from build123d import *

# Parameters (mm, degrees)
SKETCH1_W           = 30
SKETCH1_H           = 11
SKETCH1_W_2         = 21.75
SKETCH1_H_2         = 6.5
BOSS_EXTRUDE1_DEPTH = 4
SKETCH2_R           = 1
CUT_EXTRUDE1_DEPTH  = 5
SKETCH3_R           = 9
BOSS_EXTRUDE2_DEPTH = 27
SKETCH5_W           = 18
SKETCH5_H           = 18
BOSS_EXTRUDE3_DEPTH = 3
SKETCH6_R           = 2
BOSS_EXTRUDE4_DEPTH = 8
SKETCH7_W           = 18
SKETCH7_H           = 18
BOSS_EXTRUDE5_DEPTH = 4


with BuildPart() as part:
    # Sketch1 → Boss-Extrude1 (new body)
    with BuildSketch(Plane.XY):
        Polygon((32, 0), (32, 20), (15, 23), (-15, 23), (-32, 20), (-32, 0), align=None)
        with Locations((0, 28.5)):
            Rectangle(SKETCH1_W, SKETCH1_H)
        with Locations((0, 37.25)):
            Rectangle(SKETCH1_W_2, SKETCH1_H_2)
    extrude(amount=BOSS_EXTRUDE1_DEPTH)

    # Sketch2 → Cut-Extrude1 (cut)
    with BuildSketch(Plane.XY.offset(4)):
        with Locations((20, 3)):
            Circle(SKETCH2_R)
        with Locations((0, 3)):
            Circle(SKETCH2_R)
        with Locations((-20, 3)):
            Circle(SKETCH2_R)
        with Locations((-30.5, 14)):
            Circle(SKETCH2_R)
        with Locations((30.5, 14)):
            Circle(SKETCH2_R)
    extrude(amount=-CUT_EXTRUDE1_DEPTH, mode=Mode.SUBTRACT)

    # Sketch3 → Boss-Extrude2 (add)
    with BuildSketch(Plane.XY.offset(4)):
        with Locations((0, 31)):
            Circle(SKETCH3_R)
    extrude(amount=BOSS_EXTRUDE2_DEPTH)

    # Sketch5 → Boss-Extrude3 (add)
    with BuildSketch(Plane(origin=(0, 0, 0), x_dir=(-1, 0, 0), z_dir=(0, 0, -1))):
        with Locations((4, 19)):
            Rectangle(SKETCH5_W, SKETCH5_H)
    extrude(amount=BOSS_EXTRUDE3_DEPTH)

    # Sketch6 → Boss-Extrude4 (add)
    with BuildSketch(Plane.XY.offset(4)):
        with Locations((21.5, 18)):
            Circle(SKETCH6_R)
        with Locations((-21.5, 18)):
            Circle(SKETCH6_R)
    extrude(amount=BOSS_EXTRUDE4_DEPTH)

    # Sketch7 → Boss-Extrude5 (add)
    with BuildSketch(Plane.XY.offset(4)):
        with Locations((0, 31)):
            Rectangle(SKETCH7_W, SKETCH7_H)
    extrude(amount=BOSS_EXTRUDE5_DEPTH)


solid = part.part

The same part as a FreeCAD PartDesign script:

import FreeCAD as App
import Part
import Sketcher

V = App.Vector

doc = App.newDocument("Part")
body = doc.addObject("PartDesign::Body", "Body")

# Sketch on XY plane
sketch1 = body.newObject("Sketcher::SketchObject", "Sketch")
sketch1.AttachmentSupport = (doc.getObject("XY_Plane"), [""])
sketch1.MapMode = "FlatFace"
sketch1.addGeometry(Part.LineSegment(V(32, 0, 0), V(32, 20, 0)), False)
sketch1.addGeometry(Part.LineSegment(V(32, 20, 0), V(15, 23, 0)), False)
sketch1.addGeometry(Part.LineSegment(V(15, 23, 0), V(15, 34, 0)), False)
sketch1.addGeometry(Part.LineSegment(V(15, 34, 0), V(10.9, 34, 0)), False)
sketch1.addGeometry(Part.LineSegment(V(10.9, 34, 0), V(10.9, 40.5, 0)), False)
sketch1.addGeometry(Part.LineSegment(V(10.9, 40.5, 0), V(-10.9, 40.5, 0)), False)
sketch1.addGeometry(Part.LineSegment(V(-10.9, 40.5, 0), V(-10.9, 34, 0)), False)
sketch1.addGeometry(Part.LineSegment(V(-10.9, 34, 0), V(-15, 34, 0)), False)
sketch1.addGeometry(Part.LineSegment(V(-15, 34, 0), V(-15, 23, 0)), False)
sketch1.addGeometry(Part.LineSegment(V(-15, 23, 0), V(-32, 20, 0)), False)
sketch1.addGeometry(Part.LineSegment(V(-32, 20, 0), V(-32, 0, 0)), False)
sketch1.addGeometry(Part.LineSegment(V(-32, 0, 0), V(32, 0, 0)), False)
sketch1.addConstraint(Sketcher.Constraint("Coincident", 0, 2, 1, 1))
sketch1.addConstraint(Sketcher.Constraint("Coincident", 1, 2, 2, 1))
sketch1.addConstraint(Sketcher.Constraint("Coincident", 2, 2, 3, 1))
sketch1.addConstraint(Sketcher.Constraint("Coincident", 3, 2, 4, 1))
sketch1.addConstraint(Sketcher.Constraint("Coincident", 4, 2, 5, 1))
sketch1.addConstraint(Sketcher.Constraint("Coincident", 5, 2, 6, 1))
sketch1.addConstraint(Sketcher.Constraint("Coincident", 6, 2, 7, 1))
sketch1.addConstraint(Sketcher.Constraint("Coincident", 7, 2, 8, 1))
sketch1.addConstraint(Sketcher.Constraint("Coincident", 8, 2, 9, 1))
sketch1.addConstraint(Sketcher.Constraint("Coincident", 9, 2, 10, 1))
sketch1.addConstraint(Sketcher.Constraint("Coincident", 10, 2, 11, 1))
sketch1.addConstraint(Sketcher.Constraint("Coincident", 11, 2, 0, 1))
sketch1.addConstraint(Sketcher.Constraint("Vertical", 0))
sketch1.addConstraint(Sketcher.Constraint("Vertical", 2))
sketch1.addConstraint(Sketcher.Constraint("Horizontal", 3))
sketch1.addConstraint(Sketcher.Constraint("Vertical", 4))
sketch1.addConstraint(Sketcher.Constraint("Horizontal", 5))
sketch1.addConstraint(Sketcher.Constraint("Vertical", 6))
sketch1.addConstraint(Sketcher.Constraint("Horizontal", 7))
sketch1.addConstraint(Sketcher.Constraint("Vertical", 8))
sketch1.addConstraint(Sketcher.Constraint("Vertical", 10))
sketch1.addConstraint(Sketcher.Constraint("Horizontal", 11))
sketch1.addConstraint(Sketcher.Constraint("Symmetric", 10, 2, 11, 2, -1, 1))
sketch1.addConstraint(Sketcher.Constraint("Symmetric", 3, 2, 6, 2, -2))
sketch1.addConstraint(Sketcher.Constraint("Symmetric", 1, 2, 8, 2, -2))
sketch1.addConstraint(Sketcher.Constraint("Horizontal", 0, 2, 9, 2))
sketch1.addConstraint(Sketcher.Constraint("DistanceX", 11, 1, 11, 2, 64.0))
sketch1.addConstraint(Sketcher.Constraint("DistanceY", 0, 1, 0, 2, 20.0))
sketch1.addConstraint(Sketcher.Constraint("DistanceY", 2, 1, 2, 2, 11.0))
sketch1.addConstraint(Sketcher.Constraint("DistanceY", 4, 1, 4, 2, 6.5))
sketch1.addConstraint(Sketcher.Constraint("DistanceX", -1, 1, 1, 2, 15.0))
sketch1.addConstraint(Sketcher.Constraint("DistanceY", -1, 1, 1, 2, 23.0))
sketch1.addConstraint(Sketcher.Constraint("DistanceX", 5, 2, 5, 1, 21.75))
pad1 = body.newObject("PartDesign::Pad", "Pad")
pad1.Profile = sketch1
pad1.Length = 4

# Sketch on XY plane
sketch2 = body.newObject("Sketcher::SketchObject", "Sketch001")
sketch2.AttachmentSupport = (doc.getObject("XY_Plane"), [""])
sketch2.MapMode = "FlatFace"
sketch2.AttachmentOffset = App.Placement(V(0, 0, 4), App.Rotation())
sketch2.addGeometry(Part.Circle(V(20, 3, 0), V(0, 0, 1), 1), False)
sketch2.addGeometry(Part.Circle(V(0, 3, 0), V(0, 0, 1), 1), False)
sketch2.addGeometry(Part.Circle(V(-20, 3, 0), V(0, 0, 1), 1), False)
sketch2.addGeometry(Part.Circle(V(-30.5, 14, 0), V(0, 0, 1), 1), False)
sketch2.addGeometry(Part.Circle(V(30.5, 14, 0), V(0, 0, 1), 1), False)
sketch2.addConstraint(Sketcher.Constraint("Equal", 0, 1))
sketch2.addConstraint(Sketcher.Constraint("Equal", 1, 2))
sketch2.addConstraint(Sketcher.Constraint("Equal", 2, 3))
sketch2.addConstraint(Sketcher.Constraint("Equal", 3, 4))
sketch2.addConstraint(Sketcher.Constraint("Symmetric", 0, 3, 2, 3, -2))
sketch2.addConstraint(Sketcher.Constraint("Symmetric", 3, 3, 4, 3, -2))
sketch2.addConstraint(Sketcher.Constraint("PointOnObject", 1, 3, -2))
sketch2.addConstraint(Sketcher.Constraint("Horizontal", 0, 3, 1, 3))
sketch2.addConstraint(Sketcher.Constraint("Diameter", 0, 2.0))
sketch2.addConstraint(Sketcher.Constraint("DistanceX", -1, 1, 0, 3, 20.0))
sketch2.addConstraint(Sketcher.Constraint("DistanceY", -1, 1, 0, 3, 3.0))
sketch2.addConstraint(Sketcher.Constraint("DistanceY", -1, 1, 3, 3, 14.0))
sketch2.addConstraint(Sketcher.Constraint("DistanceX", 3, 3, 4, 3, 61.0))
pocket1 = body.newObject("PartDesign::Pocket", "Pocket")
pocket1.Profile = sketch2
pocket1.Length = 5

# Sketch on XY plane
sketch3 = body.newObject("Sketcher::SketchObject", "Sketch002")
sketch3.AttachmentSupport = (doc.getObject("XY_Plane"), [""])
sketch3.MapMode = "FlatFace"
sketch3.AttachmentOffset = App.Placement(V(0, 0, 4), App.Rotation())
sketch3.addGeometry(Part.Circle(V(0, 31, 0), V(0, 0, 1), 9), False)
sketch3.addConstraint(Sketcher.Constraint("PointOnObject", 0, 3, -2))
sketch3.addConstraint(Sketcher.Constraint("Diameter", 0, 18.0))
sketch3.addConstraint(Sketcher.Constraint("DistanceY", -1, 1, 0, 3, 31.0))
pad2 = body.newObject("PartDesign::Pad", "Pad001")
pad2.Profile = sketch3
pad2.Length = 27

# Sketch on XY plane
sketch4 = body.newObject("Sketcher::SketchObject", "Sketch003")
sketch4.AttachmentSupport = (doc.getObject("XY_Plane"), [""])
sketch4.MapMode = "FlatFace"
sketch4.addGeometry(Part.LineSegment(V(5, 28, 0), V(5, 10, 0)), False)
sketch4.addGeometry(Part.LineSegment(V(5, 10, 0), V(-13, 10, 0)), False)
sketch4.addGeometry(Part.LineSegment(V(-13, 10, 0), V(-13, 28, 0)), False)
sketch4.addGeometry(Part.LineSegment(V(-13, 28, 0), V(5, 28, 0)), False)
sketch4.addConstraint(Sketcher.Constraint("Coincident", 0, 2, 1, 1))
sketch4.addConstraint(Sketcher.Constraint("Coincident", 1, 2, 2, 1))
sketch4.addConstraint(Sketcher.Constraint("Coincident", 2, 2, 3, 1))
sketch4.addConstraint(Sketcher.Constraint("Coincident", 3, 2, 0, 1))
sketch4.addConstraint(Sketcher.Constraint("Vertical", 0))
sketch4.addConstraint(Sketcher.Constraint("Horizontal", 1))
sketch4.addConstraint(Sketcher.Constraint("Vertical", 2))
sketch4.addConstraint(Sketcher.Constraint("Horizontal", 3))
sketch4.addConstraint(Sketcher.Constraint("Equal", 3, 0))
sketch4.addConstraint(Sketcher.Constraint("DistanceX", 1, 2, 1, 1, 18.0))
sketch4.addConstraint(Sketcher.Constraint("DistanceX", -1, 1, 0, 2, 5.0))
sketch4.addConstraint(Sketcher.Constraint("DistanceY", -1, 1, 0, 2, 10.0))
pad3 = body.newObject("PartDesign::Pad", "Pad002")
pad3.Profile = sketch4
pad3.Length = 3
pad3.Reversed = True

# Sketch on XY plane
sketch5 = body.newObject("Sketcher::SketchObject", "Sketch004")
sketch5.AttachmentSupport = (doc.getObject("XY_Plane"), [""])
sketch5.MapMode = "FlatFace"
sketch5.AttachmentOffset = App.Placement(V(0, 0, 4), App.Rotation())
sketch5.addGeometry(Part.Circle(V(21.5, 18, 0), V(0, 0, 1), 2), False)
sketch5.addGeometry(Part.Circle(V(-21.5, 18, 0), V(0, 0, 1), 2), False)
sketch5.addConstraint(Sketcher.Constraint("Equal", 0, 1))
sketch5.addConstraint(Sketcher.Constraint("Symmetric", 0, 3, 1, 3, -2))
sketch5.addConstraint(Sketcher.Constraint("Diameter", 0, 4.0))
sketch5.addConstraint(Sketcher.Constraint("DistanceY", -1, 1, 0, 3, 18.0))
sketch5.addConstraint(Sketcher.Constraint("DistanceX", 1, 3, 0, 3, 43.0))
pad4 = body.newObject("PartDesign::Pad", "Pad003")
pad4.Profile = sketch5
pad4.Length = 8

# Sketch on XY plane
sketch6 = body.newObject("Sketcher::SketchObject", "Sketch005")
sketch6.AttachmentSupport = (doc.getObject("XY_Plane"), [""])
sketch6.MapMode = "FlatFace"
sketch6.AttachmentOffset = App.Placement(V(0, 0, 4), App.Rotation())
sketch6.addGeometry(Part.LineSegment(V(-9, 40, 0), V(-9, 22, 0)), False)
sketch6.addGeometry(Part.LineSegment(V(-9, 22, 0), V(9, 22, 0)), False)
sketch6.addGeometry(Part.LineSegment(V(9, 22, 0), V(9, 40, 0)), False)
sketch6.addGeometry(Part.LineSegment(V(9, 40, 0), V(-9, 40, 0)), False)
sketch6.addConstraint(Sketcher.Constraint("Coincident", 0, 2, 1, 1))
sketch6.addConstraint(Sketcher.Constraint("Coincident", 1, 2, 2, 1))
sketch6.addConstraint(Sketcher.Constraint("Coincident", 2, 2, 3, 1))
sketch6.addConstraint(Sketcher.Constraint("Coincident", 3, 2, 0, 1))
sketch6.addConstraint(Sketcher.Constraint("Vertical", 0))
sketch6.addConstraint(Sketcher.Constraint("Horizontal", 1))
sketch6.addConstraint(Sketcher.Constraint("Vertical", 2))
sketch6.addConstraint(Sketcher.Constraint("Horizontal", 3))
sketch6.addConstraint(Sketcher.Constraint("Equal", 3, 0))
sketch6.addConstraint(Sketcher.Constraint("DistanceX", 1, 1, 1, 2, 18.0))
sketch6.addConstraint(Sketcher.Constraint("DistanceX", 0, 2, -1, 1, 9.0))
sketch6.addConstraint(Sketcher.Constraint("DistanceY", -1, 1, 0, 2, 22.0))
pad5 = body.newObject("PartDesign::Pad", "Pad004")
pad5.Profile = sketch6
pad5.Length = 4

doc.recompute()
